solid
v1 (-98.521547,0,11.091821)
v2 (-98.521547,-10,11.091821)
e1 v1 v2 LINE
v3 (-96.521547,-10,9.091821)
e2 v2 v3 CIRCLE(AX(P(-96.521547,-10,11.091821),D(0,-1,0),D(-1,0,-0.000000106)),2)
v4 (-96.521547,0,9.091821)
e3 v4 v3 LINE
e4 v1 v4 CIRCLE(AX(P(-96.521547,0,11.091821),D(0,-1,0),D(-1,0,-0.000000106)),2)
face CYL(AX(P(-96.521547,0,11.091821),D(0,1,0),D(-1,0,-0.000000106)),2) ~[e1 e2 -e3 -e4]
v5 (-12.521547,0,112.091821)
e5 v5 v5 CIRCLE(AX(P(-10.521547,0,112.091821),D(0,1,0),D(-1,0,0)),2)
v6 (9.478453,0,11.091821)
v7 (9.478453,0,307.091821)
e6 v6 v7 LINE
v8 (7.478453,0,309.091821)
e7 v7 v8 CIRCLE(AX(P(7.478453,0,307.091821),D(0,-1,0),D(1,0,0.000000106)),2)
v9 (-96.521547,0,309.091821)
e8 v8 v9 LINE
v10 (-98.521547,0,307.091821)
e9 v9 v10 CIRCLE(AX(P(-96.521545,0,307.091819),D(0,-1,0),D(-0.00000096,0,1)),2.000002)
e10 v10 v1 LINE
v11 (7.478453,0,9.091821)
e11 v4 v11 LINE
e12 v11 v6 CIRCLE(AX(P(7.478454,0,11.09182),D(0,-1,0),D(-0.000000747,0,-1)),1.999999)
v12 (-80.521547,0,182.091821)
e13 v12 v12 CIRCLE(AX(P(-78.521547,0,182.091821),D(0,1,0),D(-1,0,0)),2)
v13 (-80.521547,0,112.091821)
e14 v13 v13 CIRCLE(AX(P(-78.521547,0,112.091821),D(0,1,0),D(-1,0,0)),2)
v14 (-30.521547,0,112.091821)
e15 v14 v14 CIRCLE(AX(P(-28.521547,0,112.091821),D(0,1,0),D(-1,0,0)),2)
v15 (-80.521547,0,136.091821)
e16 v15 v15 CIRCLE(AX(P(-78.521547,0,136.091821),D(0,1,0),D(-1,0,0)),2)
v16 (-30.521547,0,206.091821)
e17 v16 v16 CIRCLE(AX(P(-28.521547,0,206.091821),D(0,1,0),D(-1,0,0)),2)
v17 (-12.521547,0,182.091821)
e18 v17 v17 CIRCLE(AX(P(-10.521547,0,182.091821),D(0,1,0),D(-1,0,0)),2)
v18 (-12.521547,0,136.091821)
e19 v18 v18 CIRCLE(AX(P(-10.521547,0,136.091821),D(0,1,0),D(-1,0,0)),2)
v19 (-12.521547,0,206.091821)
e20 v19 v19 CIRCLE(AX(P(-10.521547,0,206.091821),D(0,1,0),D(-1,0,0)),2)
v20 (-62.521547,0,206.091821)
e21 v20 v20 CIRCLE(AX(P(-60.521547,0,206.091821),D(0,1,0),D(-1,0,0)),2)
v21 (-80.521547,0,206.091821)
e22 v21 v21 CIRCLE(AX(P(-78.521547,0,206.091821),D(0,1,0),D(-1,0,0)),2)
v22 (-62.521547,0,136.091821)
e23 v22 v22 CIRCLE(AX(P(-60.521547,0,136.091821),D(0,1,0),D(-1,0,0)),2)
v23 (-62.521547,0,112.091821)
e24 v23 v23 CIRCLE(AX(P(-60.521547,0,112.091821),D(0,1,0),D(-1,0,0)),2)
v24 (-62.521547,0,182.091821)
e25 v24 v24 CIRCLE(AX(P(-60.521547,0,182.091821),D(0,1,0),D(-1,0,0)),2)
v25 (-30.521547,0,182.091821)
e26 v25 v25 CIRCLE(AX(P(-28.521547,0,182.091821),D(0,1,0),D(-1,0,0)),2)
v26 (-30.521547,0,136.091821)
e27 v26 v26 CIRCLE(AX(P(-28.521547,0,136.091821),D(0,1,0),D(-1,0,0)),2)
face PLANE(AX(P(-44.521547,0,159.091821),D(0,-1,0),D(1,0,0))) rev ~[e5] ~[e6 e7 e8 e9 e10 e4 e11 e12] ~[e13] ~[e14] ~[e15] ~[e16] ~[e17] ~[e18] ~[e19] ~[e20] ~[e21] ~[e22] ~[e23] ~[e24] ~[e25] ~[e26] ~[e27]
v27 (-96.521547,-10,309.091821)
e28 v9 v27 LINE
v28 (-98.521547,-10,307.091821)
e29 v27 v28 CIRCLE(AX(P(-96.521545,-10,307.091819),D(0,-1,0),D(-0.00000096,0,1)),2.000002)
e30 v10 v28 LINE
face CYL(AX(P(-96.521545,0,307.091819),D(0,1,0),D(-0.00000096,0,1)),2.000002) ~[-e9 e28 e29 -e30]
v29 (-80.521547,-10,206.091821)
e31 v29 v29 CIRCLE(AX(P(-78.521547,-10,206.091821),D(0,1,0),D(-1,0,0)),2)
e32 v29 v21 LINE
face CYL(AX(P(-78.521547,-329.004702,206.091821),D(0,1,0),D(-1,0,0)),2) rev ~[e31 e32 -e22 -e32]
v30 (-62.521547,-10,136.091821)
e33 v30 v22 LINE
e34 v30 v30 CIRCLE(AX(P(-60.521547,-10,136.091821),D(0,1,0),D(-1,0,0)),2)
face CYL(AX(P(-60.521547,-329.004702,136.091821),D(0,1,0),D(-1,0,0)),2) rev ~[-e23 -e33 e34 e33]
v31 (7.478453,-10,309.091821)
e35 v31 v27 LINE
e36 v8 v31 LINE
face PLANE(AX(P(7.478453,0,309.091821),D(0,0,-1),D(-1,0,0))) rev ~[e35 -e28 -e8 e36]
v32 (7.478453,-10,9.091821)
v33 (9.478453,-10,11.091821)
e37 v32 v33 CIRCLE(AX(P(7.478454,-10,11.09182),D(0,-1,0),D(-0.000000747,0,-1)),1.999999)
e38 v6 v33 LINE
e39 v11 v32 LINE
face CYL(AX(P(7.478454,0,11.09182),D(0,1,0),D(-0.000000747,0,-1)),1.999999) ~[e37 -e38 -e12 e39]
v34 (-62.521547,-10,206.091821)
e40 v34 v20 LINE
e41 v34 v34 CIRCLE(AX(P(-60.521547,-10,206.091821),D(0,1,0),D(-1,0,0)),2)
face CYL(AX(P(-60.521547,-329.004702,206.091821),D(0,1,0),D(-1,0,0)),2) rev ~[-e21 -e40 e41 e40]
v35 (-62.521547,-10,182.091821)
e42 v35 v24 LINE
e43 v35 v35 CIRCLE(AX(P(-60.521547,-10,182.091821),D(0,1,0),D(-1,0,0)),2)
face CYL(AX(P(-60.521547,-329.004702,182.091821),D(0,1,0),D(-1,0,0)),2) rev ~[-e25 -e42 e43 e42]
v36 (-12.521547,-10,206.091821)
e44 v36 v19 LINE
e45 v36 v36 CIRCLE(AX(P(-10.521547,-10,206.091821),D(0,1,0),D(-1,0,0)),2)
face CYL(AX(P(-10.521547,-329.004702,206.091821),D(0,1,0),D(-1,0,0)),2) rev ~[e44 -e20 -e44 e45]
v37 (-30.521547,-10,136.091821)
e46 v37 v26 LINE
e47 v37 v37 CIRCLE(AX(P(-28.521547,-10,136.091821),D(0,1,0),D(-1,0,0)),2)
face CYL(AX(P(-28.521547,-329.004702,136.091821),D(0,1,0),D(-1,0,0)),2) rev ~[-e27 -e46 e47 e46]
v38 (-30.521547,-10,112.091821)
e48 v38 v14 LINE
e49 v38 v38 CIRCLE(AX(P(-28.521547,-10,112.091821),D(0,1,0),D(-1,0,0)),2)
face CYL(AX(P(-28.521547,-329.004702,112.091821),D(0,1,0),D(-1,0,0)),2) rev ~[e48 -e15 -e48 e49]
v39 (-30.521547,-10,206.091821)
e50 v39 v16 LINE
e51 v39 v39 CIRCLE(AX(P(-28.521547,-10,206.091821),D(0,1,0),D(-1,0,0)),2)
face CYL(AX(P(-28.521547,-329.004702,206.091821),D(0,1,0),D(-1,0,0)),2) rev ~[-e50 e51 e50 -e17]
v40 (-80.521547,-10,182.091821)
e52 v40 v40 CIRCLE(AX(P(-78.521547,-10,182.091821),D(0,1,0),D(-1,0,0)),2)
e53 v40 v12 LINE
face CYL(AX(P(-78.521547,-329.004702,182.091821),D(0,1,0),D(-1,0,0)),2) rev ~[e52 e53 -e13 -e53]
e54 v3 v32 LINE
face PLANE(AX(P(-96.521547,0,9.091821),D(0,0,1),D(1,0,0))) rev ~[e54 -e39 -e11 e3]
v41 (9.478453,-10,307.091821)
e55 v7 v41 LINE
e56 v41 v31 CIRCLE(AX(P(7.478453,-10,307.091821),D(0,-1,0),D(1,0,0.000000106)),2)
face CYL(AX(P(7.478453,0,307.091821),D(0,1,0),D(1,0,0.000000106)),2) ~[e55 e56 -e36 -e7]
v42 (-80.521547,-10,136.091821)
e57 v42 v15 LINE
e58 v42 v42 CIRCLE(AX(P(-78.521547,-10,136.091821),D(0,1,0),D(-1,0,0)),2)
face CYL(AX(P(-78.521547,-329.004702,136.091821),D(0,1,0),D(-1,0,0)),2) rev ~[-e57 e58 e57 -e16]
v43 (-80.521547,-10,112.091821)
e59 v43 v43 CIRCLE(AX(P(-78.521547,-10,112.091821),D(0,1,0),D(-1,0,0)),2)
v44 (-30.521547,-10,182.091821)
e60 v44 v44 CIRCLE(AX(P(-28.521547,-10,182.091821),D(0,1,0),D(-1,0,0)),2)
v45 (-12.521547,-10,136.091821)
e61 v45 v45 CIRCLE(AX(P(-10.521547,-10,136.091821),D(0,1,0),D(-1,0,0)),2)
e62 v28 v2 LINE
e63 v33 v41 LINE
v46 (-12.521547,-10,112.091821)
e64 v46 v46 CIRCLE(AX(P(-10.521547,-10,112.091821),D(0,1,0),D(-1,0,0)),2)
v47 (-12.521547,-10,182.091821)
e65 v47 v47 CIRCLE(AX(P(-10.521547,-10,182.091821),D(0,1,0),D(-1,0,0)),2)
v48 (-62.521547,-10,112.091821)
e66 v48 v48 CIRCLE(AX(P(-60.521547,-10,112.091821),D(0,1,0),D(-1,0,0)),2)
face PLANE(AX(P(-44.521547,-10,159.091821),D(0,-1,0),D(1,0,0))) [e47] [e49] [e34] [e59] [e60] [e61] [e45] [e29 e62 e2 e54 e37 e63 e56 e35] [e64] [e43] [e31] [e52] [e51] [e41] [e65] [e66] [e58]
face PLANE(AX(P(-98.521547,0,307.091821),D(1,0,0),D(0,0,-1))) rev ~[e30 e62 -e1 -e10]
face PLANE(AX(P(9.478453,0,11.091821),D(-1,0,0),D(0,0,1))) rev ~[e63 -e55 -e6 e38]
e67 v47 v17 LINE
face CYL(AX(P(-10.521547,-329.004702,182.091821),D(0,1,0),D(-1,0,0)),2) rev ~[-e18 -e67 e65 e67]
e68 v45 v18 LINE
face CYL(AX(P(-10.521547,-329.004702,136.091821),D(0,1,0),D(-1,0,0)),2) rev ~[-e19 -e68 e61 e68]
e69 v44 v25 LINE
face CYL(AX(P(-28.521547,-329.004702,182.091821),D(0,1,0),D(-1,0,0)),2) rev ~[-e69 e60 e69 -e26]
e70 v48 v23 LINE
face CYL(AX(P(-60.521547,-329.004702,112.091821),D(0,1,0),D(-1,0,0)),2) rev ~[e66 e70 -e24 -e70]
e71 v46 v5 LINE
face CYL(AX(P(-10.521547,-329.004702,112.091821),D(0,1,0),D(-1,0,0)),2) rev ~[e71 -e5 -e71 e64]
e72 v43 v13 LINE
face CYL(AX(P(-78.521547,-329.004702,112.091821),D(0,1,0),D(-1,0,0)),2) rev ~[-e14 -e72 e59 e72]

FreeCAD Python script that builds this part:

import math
import FreeCAD as App
import Part
import Sketcher
Q = App.Units.Quantity

doc = App.newDocument("Part")
body = doc.addObject("PartDesign::Body", "Body")

# Sketch on XZ plane
sketch1 = doc.addObject("Sketcher::SketchObject", "Sketch")
body.addObject(sketch1)
sketch1.AttachmentSupport = (doc.XZ_Plane, [""])
sketch1.MapMode = "FlatFace"
sketch1.addGeometry([
    Part.LineSegment(App.Vector(7.478453, 309.091821, 0), App.Vector(-96.521547, 309.091821, 0)),  # 0
    Part.ArcOfCircle(Part.Circle(App.Vector(-96.521545, 307.091819, 0), App.Vector(0, 0, 1), 2.000002), math.radians(90.000055), math.radians(179.999945)),  # 1
    Part.LineSegment(App.Vector(-98.521547, 307.091821, 0), App.Vector(-98.521547, 11.091821, 0)),  # 2
    Part.ArcOfCircle(Part.Circle(App.Vector(-96.521547, 11.091821, 0), App.Vector(0, 0, 1), 2), math.radians(-179.999994), math.radians(-90.000006)),  # 3
    Part.LineSegment(App.Vector(-96.521547, 9.091821, 0), App.Vector(7.478453, 9.091821, 0)),  # 4
    Part.ArcOfCircle(Part.Circle(App.Vector(7.478454, 11.09182, 0), App.Vector(0, 0, 1), 1.999999), math.radians(-90.000043), math.radians(0.000043)),  # 5
    Part.LineSegment(App.Vector(9.478453, 11.091821, 0), App.Vector(9.478453, 307.091821, 0)),  # 6
    Part.ArcOfCircle(Part.Circle(App.Vector(7.478453, 307.091821, 0), App.Vector(0, 0, 1), 2), math.radians(0.000006), math.radians(89.999994)),  # 7
], False)
sketch1.addConstraint([
    Sketcher.Constraint("Tangent", 0, 2, 1, 1),
    Sketcher.Constraint("Tangent", 1, 2, 2, 1),
    Sketcher.Constraint("Tangent", 2, 2, 3, 1),
    Sketcher.Constraint("Tangent", 3, 2, 4, 1),
    Sketcher.Constraint("Tangent", 4, 2, 5, 1),
    Sketcher.Constraint("Tangent", 5, 2, 6, 1),
    Sketcher.Constraint("Tangent", 6, 2, 7, 1),
    Sketcher.Constraint("Tangent", 7, 2, 0, 1),
    Sketcher.Constraint("Horizontal", 0),
    Sketcher.Constraint("Vertical", 2),
    Sketcher.Constraint("Horizontal", 4),
    Sketcher.Constraint("Vertical", 6),
    Sketcher.Constraint("Equal", 1, 3),
    Sketcher.Constraint("Equal", 3, 5),
    Sketcher.Constraint("Equal", 5, 7),
    Sketcher.Constraint("Radius", 1, Q("2.000002 mm")),
    Sketcher.Constraint("DistanceX", 0, 2, 0, 1, Q("104 mm")),
    Sketcher.Constraint("DistanceY", 2, 2, 2, 1, Q("296 mm")),
    Sketcher.Constraint("DistanceY", -1, 1, 1, 3, Q("307.091819 mm")),
    Sketcher.Constraint("DistanceX", 1, 3, -1, 1, Q("96.521545 mm")),
])
pad1 = doc.addObject("PartDesign::Pad", "Pad")
body.addObject(pad1)
pad1.Profile = sketch1
pad1.Length = 10

# Sketch on XZ plane
sketch2 = doc.addObject("Sketcher::SketchObject", "Sketch001")
body.addObject(sketch2)
sketch2.AttachmentSupport = (doc.XZ_Plane, [""])
sketch2.MapMode = "FlatFace"
sketch2.AttachmentOffset = App.Placement(App.Vector(0, 0, 10), App.Rotation())
sketch2.addGeometry([
    Part.Circle(App.Vector(-78.521547, 206.091821, 0), App.Vector(0, 0, 1), 2),  # 0
    Part.Circle(App.Vector(-60.521547, 206.091821, 0), App.Vector(0, 0, 1), 2),  # 1
    Part.Circle(App.Vector(-60.521547, 182.091821, 0), App.Vector(0, 0, 1), 2),  # 2
    Part.Circle(App.Vector(-78.521547, 182.091821, 0), App.Vector(0, 0, 1), 2),  # 3
    Part.Circle(App.Vector(-28.521547, 206.091821, 0), App.Vector(0, 0, 1), 2),  # 4
    Part.Circle(App.Vector(-10.521547, 206.091821, 0), App.Vector(0, 0, 1), 2),  # 5
    Part.Circle(App.Vector(-10.521547, 182.091821, 0), App.Vector(0, 0, 1), 2),  # 6
    Part.Circle(App.Vector(-28.521547, 182.091821, 0), App.Vector(0, 0, 1), 2),  # 7
    Part.Circle(App.Vector(-10.521547, 136.091821, 0), App.Vector(0, 0, 1), 2),  # 8
    Part.Circle(App.Vector(-10.521547, 112.091821, 0), App.Vector(0, 0, 1), 2),  # 9
    Part.Circle(App.Vector(-28.521547, 112.091821, 0), App.Vector(0, 0, 1), 2),  # 10
    Part.Circle(App.Vector(-28.521547, 136.091821, 0), App.Vector(0, 0, 1), 2),  # 11
    Part.Circle(App.Vector(-60.521547, 136.091821, 0), App.Vector(0, 0, 1), 2),  # 12
    Part.Circle(App.Vector(-60.521547, 112.091821, 0), App.Vector(0, 0, 1), 2),  # 13
    Part.Circle(App.Vector(-78.521547, 112.091821, 0), App.Vector(0, 0, 1), 2),  # 14
    Part.Circle(App.Vector(-78.521547, 136.091821, 0), App.Vector(0, 0, 1), 2),  # 15
], False)
sketch2.addConstraint([
    Sketcher.Constraint("Equal", 0, 1),
    Sketcher.Constraint("Equal", 1, 2),
    Sketcher.Constraint("Equal", 2, 3),
    Sketcher.Constraint("Equal", 3, 4),
    Sketcher.Constraint("Equal", 4, 5),
    Sketcher.Constraint("Equal", 5, 6),
    Sketcher.Constraint("Equal", 6, 7),
    Sketcher.Constraint("Equal", 7, 8),
    Sketcher.Constraint("Equal", 8, 9),
    Sketcher.Constraint("Equal", 9, 10),
    Sketcher.Constraint("Equal", 10, 11),
    Sketcher.Constraint("Equal", 11, 12),
    Sketcher.Constraint("Equal", 12, 13),
    Sketcher.Constraint("Equal", 13, 14),
    Sketcher.Constraint("Equal", 14, 15),
    Sketcher.Constraint("Horizontal", 0, 3, 1, 3),
    Sketcher.Constraint("Horizontal", 2, 3, 3, 3),
    Sketcher.Constraint("Horizontal", 1, 3, 4, 3),
    Sketcher.Constraint("Horizontal", 4, 3, 5, 3),
    Sketcher.Constraint("Horizontal", 3, 3, 6, 3),
    Sketcher.Constraint("Horizontal", 6, 3, 7, 3),
    Sketcher.Constraint("Horizontal", 9, 3, 10, 3),
    Sketcher.Constraint("Horizontal", 8, 3, 11, 3),
    Sketcher.Constraint("Horizontal", 11, 3, 12, 3),
    Sketcher.Constraint("Horizontal", 10, 3, 13, 3),
    Sketcher.Constraint("Horizontal", 13, 3, 14, 3),
    Sketcher.Constraint("Horizontal", 12, 3, 15, 3),
    Sketcher.Constraint("Vertical", 1, 3, 2, 3),
    Sketcher.Constraint("Vertical", 0, 3, 3, 3),
    Sketcher.Constraint("Vertical", 5, 3, 6, 3),
    Sketcher.Constraint("Vertical", 4, 3, 7, 3),
    Sketcher.Constraint("Vertical", 6, 3, 8, 3),
    Sketcher.Constraint("Vertical", 8, 3, 9, 3),
    Sketcher.Constraint("Vertical", 7, 3, 10, 3),
    Sketcher.Constraint("Vertical", 10, 3, 11, 3),
    Sketcher.Constraint("Vertical", 2, 3, 12, 3),
    Sketcher.Constraint("Vertical", 12, 3, 13, 3),
    Sketcher.Constraint("Vertical", 3, 3, 14, 3),
    Sketcher.Constraint("Vertical", 14, 3, 15, 3),
    Sketcher.Constraint("Diameter", 0, Q("4 mm")),
    Sketcher.Constraint("DistanceX", 0, 3, 1, 3, Q("18 mm")),
    Sketcher.Constraint("DistanceY", 2, 3, 1, 3, Q("24 mm")),
    Sketcher.Constraint("DistanceX", 1, 3, 4, 3, Q("32 mm")),
    Sketcher.Constraint("DistanceX", 4, 3, 5, 3, Q("18 mm")),
    Sketcher.Constraint("DistanceY", 8, 3, 6, 3, Q("46 mm")),
    Sketcher.Constraint("DistanceY", 9, 3, 8, 3, Q("24 mm")),
    Sketcher.Constraint("DistanceY", -1, 1, 0, 3, Q("206.091821 mm")),
    Sketcher.Constraint("DistanceX", 0, 3, -1, 1, Q("78.521547 mm")),
])
doc.recompute()
hole = doc.addObject("PartDesign::Hole", "Hole")
body.addObject(hole)
hole.Profile = sketch2
hole.ThreadType = "None"
hole.Diameter = 4
hole.DepthType = "ThroughAll"

doc.recompute()
